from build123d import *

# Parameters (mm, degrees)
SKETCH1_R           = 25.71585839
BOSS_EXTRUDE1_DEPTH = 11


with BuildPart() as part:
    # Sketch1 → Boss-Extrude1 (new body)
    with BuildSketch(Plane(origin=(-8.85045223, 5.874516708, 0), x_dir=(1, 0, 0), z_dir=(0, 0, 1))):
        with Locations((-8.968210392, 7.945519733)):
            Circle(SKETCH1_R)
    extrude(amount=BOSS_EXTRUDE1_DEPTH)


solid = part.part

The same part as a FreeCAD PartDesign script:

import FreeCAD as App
import Part
import Sketcher
Q = App.Units.Quantity

doc = App.newDocument("Part")
body = doc.addObject("PartDesign::Body", "Body")

sketch1 = body.newObject("Sketcher::SketchObject", "Sketch")
sketch1.AttachmentSupport = (doc.getObject("XY_Plane"), [""])
sketch1.MapMode = "FlatFace"
sketch1.addGeometry(Part.Circle(App.Vector(-18, 14, 0), App.Vector(0, 0, 1), 26), False)
sketch1.addConstraint([
    Sketcher.Constraint("Diameter", 0, Q("51.431717 mm")),
    Sketcher.Constraint("DistanceX", 0, 3, -1, 1, Q("17.818663 mm")),
    Sketcher.Constraint("DistanceY", -1, 1, 0, 3, Q("13.820036 mm")),
])
pad1 = body.newObject("PartDesign::Pad", "Pad")
pad1.Profile = sketch1
pad1.Length = 11

doc.recompute()
